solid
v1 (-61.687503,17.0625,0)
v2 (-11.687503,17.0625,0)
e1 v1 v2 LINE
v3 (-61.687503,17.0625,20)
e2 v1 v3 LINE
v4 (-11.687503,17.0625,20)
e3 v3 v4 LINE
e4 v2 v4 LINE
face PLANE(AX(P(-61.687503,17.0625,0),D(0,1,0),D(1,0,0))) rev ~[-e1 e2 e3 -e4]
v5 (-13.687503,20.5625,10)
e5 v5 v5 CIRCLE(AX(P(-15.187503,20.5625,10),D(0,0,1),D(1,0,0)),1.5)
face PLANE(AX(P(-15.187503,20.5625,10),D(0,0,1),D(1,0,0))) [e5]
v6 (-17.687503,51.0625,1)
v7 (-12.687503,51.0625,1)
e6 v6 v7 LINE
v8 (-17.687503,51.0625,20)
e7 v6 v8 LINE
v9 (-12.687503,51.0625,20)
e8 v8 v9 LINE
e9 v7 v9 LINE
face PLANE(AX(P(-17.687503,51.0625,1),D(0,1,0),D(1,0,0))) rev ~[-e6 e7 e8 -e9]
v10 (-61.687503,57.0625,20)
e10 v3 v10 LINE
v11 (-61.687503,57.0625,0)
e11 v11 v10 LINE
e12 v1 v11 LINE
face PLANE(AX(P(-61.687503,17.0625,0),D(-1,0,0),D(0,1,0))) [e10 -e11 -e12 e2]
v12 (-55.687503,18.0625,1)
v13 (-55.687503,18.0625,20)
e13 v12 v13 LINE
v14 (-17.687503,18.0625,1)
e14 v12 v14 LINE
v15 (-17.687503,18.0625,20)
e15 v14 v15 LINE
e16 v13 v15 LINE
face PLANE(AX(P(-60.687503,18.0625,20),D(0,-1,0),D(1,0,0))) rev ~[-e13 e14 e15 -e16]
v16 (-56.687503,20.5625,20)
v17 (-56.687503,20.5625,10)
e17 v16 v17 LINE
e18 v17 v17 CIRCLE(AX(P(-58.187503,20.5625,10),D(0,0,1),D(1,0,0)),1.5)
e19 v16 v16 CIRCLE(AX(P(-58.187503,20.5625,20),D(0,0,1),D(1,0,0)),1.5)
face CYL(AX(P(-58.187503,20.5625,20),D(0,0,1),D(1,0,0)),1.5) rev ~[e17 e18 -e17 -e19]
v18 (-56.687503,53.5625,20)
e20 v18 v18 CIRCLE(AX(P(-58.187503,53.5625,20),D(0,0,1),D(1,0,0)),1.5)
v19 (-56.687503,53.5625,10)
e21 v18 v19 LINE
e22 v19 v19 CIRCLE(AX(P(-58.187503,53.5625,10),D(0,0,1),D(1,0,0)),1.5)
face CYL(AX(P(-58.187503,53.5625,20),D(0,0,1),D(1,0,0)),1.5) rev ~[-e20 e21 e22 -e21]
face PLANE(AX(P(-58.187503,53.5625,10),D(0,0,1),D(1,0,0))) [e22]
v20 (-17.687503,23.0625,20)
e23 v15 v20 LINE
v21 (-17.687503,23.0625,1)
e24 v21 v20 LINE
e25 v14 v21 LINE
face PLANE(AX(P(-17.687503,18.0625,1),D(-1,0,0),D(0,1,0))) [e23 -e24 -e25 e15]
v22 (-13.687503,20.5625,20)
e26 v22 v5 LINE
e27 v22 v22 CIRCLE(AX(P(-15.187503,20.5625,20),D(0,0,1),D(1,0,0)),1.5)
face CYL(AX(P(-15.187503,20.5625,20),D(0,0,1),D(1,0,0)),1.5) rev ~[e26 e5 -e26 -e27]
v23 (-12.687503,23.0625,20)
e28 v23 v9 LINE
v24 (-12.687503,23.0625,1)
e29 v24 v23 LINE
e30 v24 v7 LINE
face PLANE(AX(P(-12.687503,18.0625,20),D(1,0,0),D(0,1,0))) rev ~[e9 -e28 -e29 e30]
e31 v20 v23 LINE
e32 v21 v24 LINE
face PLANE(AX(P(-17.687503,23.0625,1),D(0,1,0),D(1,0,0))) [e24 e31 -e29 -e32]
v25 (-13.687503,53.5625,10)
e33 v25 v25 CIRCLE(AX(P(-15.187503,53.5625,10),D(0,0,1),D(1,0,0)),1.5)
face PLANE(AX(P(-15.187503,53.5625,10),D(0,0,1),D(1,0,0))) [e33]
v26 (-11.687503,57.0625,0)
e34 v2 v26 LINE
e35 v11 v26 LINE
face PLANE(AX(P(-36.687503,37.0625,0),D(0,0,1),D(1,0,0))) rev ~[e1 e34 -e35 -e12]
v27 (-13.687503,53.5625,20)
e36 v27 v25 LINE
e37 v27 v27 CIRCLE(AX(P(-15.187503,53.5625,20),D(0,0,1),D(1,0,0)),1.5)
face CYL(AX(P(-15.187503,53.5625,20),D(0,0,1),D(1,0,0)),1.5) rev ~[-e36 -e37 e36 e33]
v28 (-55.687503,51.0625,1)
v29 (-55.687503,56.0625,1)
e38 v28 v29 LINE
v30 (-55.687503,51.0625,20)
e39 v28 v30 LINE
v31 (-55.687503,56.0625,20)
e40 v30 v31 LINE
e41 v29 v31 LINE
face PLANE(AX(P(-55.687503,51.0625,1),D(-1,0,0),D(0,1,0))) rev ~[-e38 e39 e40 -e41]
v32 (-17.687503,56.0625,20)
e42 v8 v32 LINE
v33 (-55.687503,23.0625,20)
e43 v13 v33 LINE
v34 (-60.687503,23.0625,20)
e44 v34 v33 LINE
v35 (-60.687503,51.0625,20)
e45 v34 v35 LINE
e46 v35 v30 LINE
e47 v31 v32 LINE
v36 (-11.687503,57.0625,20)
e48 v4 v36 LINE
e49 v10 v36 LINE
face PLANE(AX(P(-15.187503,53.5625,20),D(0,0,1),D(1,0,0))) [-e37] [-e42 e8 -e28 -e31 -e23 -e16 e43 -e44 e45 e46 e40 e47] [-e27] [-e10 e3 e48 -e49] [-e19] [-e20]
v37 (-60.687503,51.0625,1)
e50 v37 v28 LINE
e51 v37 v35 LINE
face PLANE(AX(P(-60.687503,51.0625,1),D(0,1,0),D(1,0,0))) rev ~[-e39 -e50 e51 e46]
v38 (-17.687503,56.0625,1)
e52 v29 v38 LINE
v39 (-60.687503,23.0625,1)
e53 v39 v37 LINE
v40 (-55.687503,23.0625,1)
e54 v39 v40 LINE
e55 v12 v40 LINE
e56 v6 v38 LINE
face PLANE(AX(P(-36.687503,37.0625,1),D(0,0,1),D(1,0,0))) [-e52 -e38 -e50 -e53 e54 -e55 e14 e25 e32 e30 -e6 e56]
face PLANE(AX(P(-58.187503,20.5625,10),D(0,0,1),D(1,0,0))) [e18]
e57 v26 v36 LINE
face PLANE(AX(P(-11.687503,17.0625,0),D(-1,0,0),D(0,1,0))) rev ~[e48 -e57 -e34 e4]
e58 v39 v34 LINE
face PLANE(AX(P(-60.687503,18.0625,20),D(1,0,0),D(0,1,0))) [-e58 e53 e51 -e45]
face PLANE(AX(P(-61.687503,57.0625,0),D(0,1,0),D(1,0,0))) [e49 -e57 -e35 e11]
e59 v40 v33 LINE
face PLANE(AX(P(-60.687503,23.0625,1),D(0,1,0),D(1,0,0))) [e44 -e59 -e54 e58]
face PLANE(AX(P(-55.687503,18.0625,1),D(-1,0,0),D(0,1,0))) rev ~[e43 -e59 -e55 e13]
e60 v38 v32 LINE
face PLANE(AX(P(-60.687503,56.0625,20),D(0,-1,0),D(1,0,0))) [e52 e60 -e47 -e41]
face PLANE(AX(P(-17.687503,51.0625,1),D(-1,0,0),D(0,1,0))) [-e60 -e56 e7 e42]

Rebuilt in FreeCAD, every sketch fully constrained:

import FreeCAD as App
import Part
import Sketcher
from FreeCAD import Vector

doc = App.newDocument("Part")
body = doc.addObject("PartDesign::Body", "Body")

sketch1 = body.newObject("Sketcher::SketchObject", "Sketch")
sketch1.AttachmentSupport = (doc.getObject("XY_Plane"), [""])
sketch1.MapMode = "FlatFace"
sketch1.addGeometry(Part.LineSegment(Vector(-61.687503, 57.0625, 0), Vector(-61.687503, 17.0625, 0)), False)
sketch1.addGeometry(Part.LineSegment(Vector(-61.687503, 17.0625, 0), Vector(-11.687503, 17.0625, 0)), False)
sketch1.addGeometry(Part.LineSegment(Vector(-11.687503, 17.0625, 0), Vector(-11.687503, 57.0625, 0)), False)
sketch1.addGeometry(Part.LineSegment(Vector(-11.687503, 57.0625, 0), Vector(-61.687503, 57.0625, 0)), False)
sketch1.addConstraint(Sketcher.Constraint("Coincident", 0, 2, 1, 1))
sketch1.addConstraint(Sketcher.Constraint("Coincident", 1, 2, 2, 1))
sketch1.addConstraint(Sketcher.Constraint("Coincident", 2, 2, 3, 1))
sketch1.addConstraint(Sketcher.Constraint("Coincident", 3, 2, 0, 1))
sketch1.addConstraint(Sketcher.Constraint("Vertical", 0))
sketch1.addConstraint(Sketcher.Constraint("Horizontal", 1))
sketch1.addConstraint(Sketcher.Constraint("Vertical", 2))
sketch1.addConstraint(Sketcher.Constraint("Horizontal", 3))
sketch1.addConstraint(Sketcher.Constraint("DistanceX", 1, 1, 1, 2, 50.0))
sketch1.addConstraint(Sketcher.Constraint("DistanceY", 0, 2, 0, 1, 40.0))
sketch1.addConstraint(Sketcher.Constraint("DistanceY", -1, 1, 0, 2, 17.0625))
sketch1.addConstraint(Sketcher.Constraint("DistanceX", 0, 2, -1, 1, 61.687503))
pad1 = body.newObject("PartDesign::Pad", "Pad")
pad1.Profile = sketch1
pad1.Length = 20

sketch2 = body.newObject("Sketcher::SketchObject", "Sketch001")
sketch2.AttachmentSupport = (doc.getObject("XY_Plane"), [""])
sketch2.MapMode = "FlatFace"
sketch2.AttachmentOffset = App.Placement(Vector(0, 0, 20), App.Rotation())
sketch2.addGeometry(Part.LineSegment(Vector(-60.687503, 56.0625, 0), Vector(-60.687503, 18.0625, 0)), False)
sketch2.addGeometry(Part.LineSegment(Vector(-60.687503, 18.0625, 0), Vector(-12.687503, 18.0625, 0)), False)
sketch2.addGeometry(Part.LineSegment(Vector(-12.687503, 18.0625, 0), Vector(-12.687503, 56.0625, 0)), False)
sketch2.addGeometry(Part.LineSegment(Vector(-12.687503, 56.0625, 0), Vector(-60.687503, 56.0625, 0)), False)
sketch2.addConstraint(Sketcher.Constraint("Coincident", 0, 2, 1, 1))
sketch2.addConstraint(Sketcher.Constraint("Coincident", 1, 2, 2, 1))
sketch2.addConstraint(Sketcher.Constraint("Coincident", 2, 2, 3, 1))
sketch2.addConstraint(Sketcher.Constraint("Coincident", 3, 2, 0, 1))
sketch2.addConstraint(Sketcher.Constraint("Vertical", 0))
sketch2.addConstraint(Sketcher.Constraint("Horizontal", 1))
sketch2.addConstraint(Sketcher.Constraint("Vertical", 2))
sketch2.addConstraint(Sketcher.Constraint("Horizontal", 3))
sketch2.addConstraint(Sketcher.Constraint("DistanceX", 1, 1, 1, 2, 48.0))
sketch2.addConstraint(Sketcher.Constraint("DistanceY", 0, 2, 0, 1, 38.0))
sketch2.addConstraint(Sketcher.Constraint("DistanceY", -1, 1, 0, 2, 18.0625))
sketch2.addConstraint(Sketcher.Constraint("DistanceX", 0, 2, -1, 1, 60.687503))
pocket1 = body.newObject("PartDesign::Pocket", "Pocket")
pocket1.Profile = sketch2
pocket1.Length = 19

sketch3 = body.newObject("Sketcher::SketchObject", "Sketch002")
sketch3.AttachmentSupport = (doc.getObject("XY_Plane"), [""])
sketch3.MapMode = "FlatFace"
sketch3.AttachmentOffset = App.Placement(Vector(0, 0, 1), App.Rotation())
sketch3.addGeometry(Part.LineSegment(Vector(-17.687503, 56.0625, 0), Vector(-17.687503, 51.0625, 0)), False)
sketch3.addGeometry(Part.LineSegment(Vector(-17.687503, 51.0625, 0), Vector(-12.687503, 51.0625, 0)), False)
sketch3.addGeometry(Part.LineSegment(Vector(-12.687503, 51.0625, 0), Vector(-12.687503, 56.0625, 0)), False)
sketch3.addGeometry(Part.LineSegment(Vector(-12.687503, 56.0625, 0), Vector(-17.687503, 56.0625, 0)), False)
sketch3.addGeometry(Part.LineSegment(Vector(-17.687503, 23.0625, 0), Vector(-17.687503, 18.0625, 0)), False)
sketch3.addGeometry(Part.LineSegment(Vector(-17.687503, 18.0625, 0), Vector(-12.687503, 18.0625, 0)), False)
sketch3.addGeometry(Part.LineSegment(Vector(-12.687503, 18.0625, 0), Vector(-12.687503, 23.0625, 0)), False)
sketch3.addGeometry(Part.LineSegment(Vector(-12.687503, 23.0625, 0), Vector(-17.687503, 23.0625, 0)), False)
sketch3.addGeometry(Part.LineSegment(Vector(-60.687503, 23.0625, 0), Vector(-60.687503, 18.0625, 0)), False)
sketch3.addGeometry(Part.LineSegment(Vector(-60.687503, 18.0625, 0), Vector(-55.687503, 18.0625, 0)), False)
sketch3.addGeometry(Part.LineSegment(Vector(-55.687503, 18.0625, 0), Vector(-55.687503, 23.0625, 0)), False)
sketch3.addGeometry(Part.LineSegment(Vector(-55.687503, 23.0625, 0), Vector(-60.687503, 23.0625, 0)), False)
sketch3.addGeometry(Part.LineSegment(Vector(-60.687503, 56.0625, 0), Vector(-60.687503, 51.0625, 0)), False)
sketch3.addGeometry(Part.LineSegment(Vector(-60.687503, 51.0625, 0), Vector(-55.687503, 51.0625, 0)), False)
sketch3.addGeometry(Part.LineSegment(Vector(-55.687503, 51.0625, 0), Vector(-55.687503, 56.0625, 0)), False)
sketch3.addGeometry(Part.LineSegment(Vector(-55.687503, 56.0625, 0), Vector(-60.687503, 56.0625, 0)), False)
sketch3.addConstraint(Sketcher.Constraint("Coincident", 0, 2, 1, 1))
sketch3.addConstraint(Sketcher.Constraint("Coincident", 1, 2, 2, 1))
sketch3.addConstraint(Sketcher.Constraint("Coincident", 2, 2, 3, 1))
sketch3.addConstraint(Sketcher.Constraint("Coincident", 3, 2, 0, 1))
sketch3.addConstraint(Sketcher.Constraint("Coincident", 4, 2, 5, 1))
sketch3.addConstraint(Sketcher.Constraint("Coincident", 5, 2, 6, 1))
sketch3.addConstraint(Sketcher.Constraint("Coincident", 6, 2, 7, 1))
sketch3.addConstraint(Sketcher.Constraint("Coincident", 7, 2, 4, 1))
sketch3.addConstraint(Sketcher.Constraint("Coincident", 8, 2, 9, 1))
sketch3.addConstraint(Sketcher.Constraint("Coincident", 9, 2, 10, 1))
sketch3.addConstraint(Sketcher.Constraint("Coincident", 10, 2, 11, 1))
sketch3.addConstraint(Sketcher.Constraint("Coincident", 11, 2, 8, 1))
sketch3.addConstraint(Sketcher.Constraint("Coincident", 12, 2, 13, 1))
sketch3.addConstraint(Sketcher.Constraint("Coincident", 13, 2, 14, 1))
sketch3.addConstraint(Sketcher.Constraint("Coincident", 14, 2, 15, 1))
sketch3.addConstraint(Sketcher.Constraint("Coincident", 15, 2, 12, 1))
sketch3.addConstraint(Sketcher.Constraint("Vertical", 0))
sketch3.addConstraint(Sketcher.Constraint("Horizontal", 1))
sketch3.addConstraint(Sketcher.Constraint("Vertical", 2))
sketch3.addConstraint(Sketcher.Constraint("Horizontal", 3))
sketch3.addConstraint(Sketcher.Constraint("Vertical", 4))
sketch3.addConstraint(Sketcher.Constraint("Horizontal", 5))
sketch3.addConstraint(Sketcher.Constraint("Vertical", 6))
sketch3.addConstraint(Sketcher.Constraint("Horizontal", 7))
sketch3.addConstraint(Sketcher.Constraint("Vertical", 8))
sketch3.addConstraint(Sketcher.Constraint("Horizontal", 9))
sketch3.addConstraint(Sketcher.Constraint("Vertical", 10))
sketch3.addConstraint(Sketcher.Constraint("Horizontal", 11))
sketch3.addConstraint(Sketcher.Constraint("Vertical", 12))
sketch3.addConstraint(Sketcher.Constraint("Horizontal", 13))
sketch3.addConstraint(Sketcher.Constraint("Vertical", 14))
sketch3.addConstraint(Sketcher.Constraint("Horizontal", 15))
sketch3.addConstraint(Sketcher.Constraint("Horizontal", 5, 2, 8, 2))
sketch3.addConstraint(Sketcher.Constraint("Horizontal", 7, 2, 10, 2))
sketch3.addConstraint(Sketcher.Constraint("Horizontal", 1, 2, 12, 2))
sketch3.addConstraint(Sketcher.Constraint("Horizontal", 3, 2, 14, 2))
sketch3.addConstraint(Sketcher.Constraint("Vertical", 3, 2, 4, 2))
sketch3.addConstraint(Sketcher.Constraint("Vertical", 2, 2, 5, 2))
sketch3.addConstraint(Sketcher.Constraint("Vertical", 11, 2, 12, 2))
sketch3.addConstraint(Sketcher.Constraint("Vertical", 10, 2, 13, 2))
sketch3.addConstraint(Sketcher.Constraint("Equal", 7, 9))
sketch3.addConstraint(Sketcher.Constraint("Equal", 15, 0))
sketch3.addConstraint(Sketcher.Constraint("Equal", 2, 4))
sketch3.addConstraint(Sketcher.Constraint("DistanceX", 1, 1, 1, 2, 5.0))
sketch3.addConstraint(Sketcher.Constraint("DistanceY", 4, 2, 0, 2, 33.0))
sketch3.addConstraint(Sketcher.Constraint("DistanceX", 8, 2, 4, 2, 43.0))
sketch3.addConstraint(Sketcher.Constraint("DistanceY", -1, 1, 0, 2, 51.0625))
sketch3.addConstraint(Sketcher.Constraint("DistanceX", 0, 2, -1, 1, 17.687503))
pad2 = body.newObject("PartDesign::Pad", "Pad001")
pad2.Profile = sketch3
pad2.Length = 19

sketch4 = body.newObject("Sketcher::SketchObject", "Sketch003")
sketch4.AttachmentSupport = (doc.getObject("XY_Plane"), [""])
sketch4.MapMode = "FlatFace"
sketch4.AttachmentOffset = App.Placement(Vector(0, 0, 20), App.Rotation())
sketch4.addGeometry(Part.Circle(Vector(-15.187503, 53.5625, 0), Vector(0, 0, 1), 1.5), False)
sketch4.addGeometry(Part.Circle(Vector(-15.187503, 20.5625, 0), Vector(0, 0, 1), 1.5), False)
sketch4.addGeometry(Part.Circle(Vector(-58.187503, 20.5625, 0), Vector(0, 0, 1), 1.5), False)
sketch4.addGeometry(Part.Circle(Vector(-58.187503, 53.5625, 0), Vector(0, 0, 1), 1.5), False)
sketch4.addConstraint(Sketcher.Constraint("Equal", 0, 1))
sketch4.addConstraint(Sketcher.Constraint("Equal", 1, 2))
sketch4.addConstraint(Sketcher.Constraint("Equal", 2, 3))
sketch4.addConstraint(Sketcher.Constraint("Horizontal", 1, 3, 2, 3))
sketch4.addConstraint(Sketcher.Constraint("Horizontal", 0, 3, 3, 3))
sketch4.addConstraint(Sketcher.Constraint("Vertical", 0, 3, 1, 3))
sketch4.addConstraint(Sketcher.Constraint("Vertical", 2, 3, 3, 3))
sketch4.addConstraint(Sketcher.Constraint("Diameter", 0, 3.0))
sketch4.addConstraint(Sketcher.Constraint("DistanceY", 1, 3, 0, 3, 33.0))
sketch4.addConstraint(Sketcher.Constraint("DistanceX", 2, 3, 1, 3, 43.0))
sketch4.addConstraint(Sketcher.Constraint("DistanceY", -1, 1, 0, 3, 53.5625))
sketch4.addConstraint(Sketcher.Constraint("DistanceX", 0, 3, -1, 1, 15.187503))
pocket2 = body.newObject("PartDesign::Pocket", "Pocket001")
pocket2.Profile = sketch4
pocket2.Length = 10

doc.recompute()
